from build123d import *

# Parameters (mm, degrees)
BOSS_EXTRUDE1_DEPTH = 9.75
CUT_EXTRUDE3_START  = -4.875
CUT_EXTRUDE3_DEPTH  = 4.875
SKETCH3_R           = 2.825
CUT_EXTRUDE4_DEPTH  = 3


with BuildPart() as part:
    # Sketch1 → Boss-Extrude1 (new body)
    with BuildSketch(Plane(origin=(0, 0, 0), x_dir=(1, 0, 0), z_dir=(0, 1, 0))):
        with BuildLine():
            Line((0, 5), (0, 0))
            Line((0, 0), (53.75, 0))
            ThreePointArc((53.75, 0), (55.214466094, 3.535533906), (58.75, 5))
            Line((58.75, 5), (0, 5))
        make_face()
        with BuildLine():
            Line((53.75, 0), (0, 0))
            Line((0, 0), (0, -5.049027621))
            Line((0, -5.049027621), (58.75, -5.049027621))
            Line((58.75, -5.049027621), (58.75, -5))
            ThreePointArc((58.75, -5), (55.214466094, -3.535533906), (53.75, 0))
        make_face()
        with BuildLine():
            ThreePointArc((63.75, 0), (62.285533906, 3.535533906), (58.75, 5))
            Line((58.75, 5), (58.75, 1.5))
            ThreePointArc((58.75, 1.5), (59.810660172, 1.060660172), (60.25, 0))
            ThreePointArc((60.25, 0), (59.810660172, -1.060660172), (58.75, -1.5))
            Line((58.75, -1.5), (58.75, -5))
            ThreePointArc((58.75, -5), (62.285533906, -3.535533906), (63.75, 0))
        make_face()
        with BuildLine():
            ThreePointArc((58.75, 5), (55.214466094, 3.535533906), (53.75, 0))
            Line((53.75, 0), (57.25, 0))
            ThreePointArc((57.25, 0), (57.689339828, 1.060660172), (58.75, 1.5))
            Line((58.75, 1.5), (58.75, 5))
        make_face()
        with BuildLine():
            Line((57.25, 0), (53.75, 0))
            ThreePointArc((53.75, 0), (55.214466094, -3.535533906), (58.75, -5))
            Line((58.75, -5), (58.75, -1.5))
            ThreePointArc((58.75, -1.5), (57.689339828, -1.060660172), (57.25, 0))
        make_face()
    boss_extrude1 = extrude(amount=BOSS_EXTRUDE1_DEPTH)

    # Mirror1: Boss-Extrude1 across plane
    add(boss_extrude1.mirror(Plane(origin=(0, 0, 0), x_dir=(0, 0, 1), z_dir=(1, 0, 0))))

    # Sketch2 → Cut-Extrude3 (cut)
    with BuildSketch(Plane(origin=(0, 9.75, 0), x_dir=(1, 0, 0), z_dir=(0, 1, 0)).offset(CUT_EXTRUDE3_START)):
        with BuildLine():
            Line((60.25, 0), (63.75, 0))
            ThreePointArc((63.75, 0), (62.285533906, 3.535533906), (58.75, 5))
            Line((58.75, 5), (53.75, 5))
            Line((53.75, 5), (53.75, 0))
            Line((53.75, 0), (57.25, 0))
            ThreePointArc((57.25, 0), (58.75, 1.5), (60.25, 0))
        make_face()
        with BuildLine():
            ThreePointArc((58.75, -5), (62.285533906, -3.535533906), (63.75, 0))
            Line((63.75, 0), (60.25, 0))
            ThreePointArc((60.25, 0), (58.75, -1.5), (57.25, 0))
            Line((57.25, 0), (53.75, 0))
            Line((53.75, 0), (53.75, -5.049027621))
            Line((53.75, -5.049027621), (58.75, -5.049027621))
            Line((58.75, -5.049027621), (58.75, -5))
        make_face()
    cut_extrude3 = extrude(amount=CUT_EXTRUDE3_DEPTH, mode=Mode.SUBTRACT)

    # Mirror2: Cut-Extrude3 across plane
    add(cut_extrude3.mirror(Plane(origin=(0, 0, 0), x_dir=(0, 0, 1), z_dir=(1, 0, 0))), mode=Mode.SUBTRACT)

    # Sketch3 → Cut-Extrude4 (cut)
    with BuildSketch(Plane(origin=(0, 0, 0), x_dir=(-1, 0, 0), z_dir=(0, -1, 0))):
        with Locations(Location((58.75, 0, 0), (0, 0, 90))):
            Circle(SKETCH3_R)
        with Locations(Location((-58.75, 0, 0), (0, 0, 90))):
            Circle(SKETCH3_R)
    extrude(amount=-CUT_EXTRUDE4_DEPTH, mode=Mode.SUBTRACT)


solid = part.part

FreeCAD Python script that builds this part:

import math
import FreeCAD as App
import Part
import Sketcher

V = App.Vector

doc = App.newDocument("Part")
body = doc.addObject("PartDesign::Body", "Body")

sketch1 = body.newObject("Sketcher::SketchObject", "Sketch")
sketch1.AttachmentSupport = (doc.getObject("XZ_Plane"), [""])
sketch1.MapMode = "FlatFace"
sketch1.addGeometry([
    Part.LineSegment(V(58.75, 5.049, 0), V(58.75, 5, 0)),
    Part.ArcOfCircle(Part.Circle(V(58.75, 0, 0), V(0, 0, 1), 5), math.radians(0), math.radians(90)),
    Part.ArcOfCircle(Part.Circle(V(58.75, 0, 0), V(0, 0, 1), 5), math.radians(-90), math.radians(0)),
    Part.LineSegment(V(58.75, -5, 0), V(0, -5, 0)),
    Part.LineSegment(V(0, -5, 0), V(0, 5.049, 0)),
    Part.LineSegment(V(0, 5.049, 0), V(58.75, 5.049, 0)),
    Part.ArcOfCircle(Part.Circle(V(58.75, 0, 0), V(0, 0, 1), 1.5), math.radians(0), math.radians(90)),
    Part.ArcOfCircle(Part.Circle(V(58.75, 0, 0), V(0, 0, 1), 1.5), math.radians(90), math.radians(180)),
    Part.ArcOfCircle(Part.Circle(V(58.75, 0, 0), V(0, 0, 1), 1.5), math.radians(180), math.radians(270)),
    Part.ArcOfCircle(Part.Circle(V(58.75, 0, 0), V(0, 0, 1), 1.5), math.radians(-90), math.radians(0)),
], False)
sketch1.addConstraint([
    Sketcher.Constraint("Coincident", 0, 2, 1, 2),
    Sketcher.Constraint("Tangent", 1, 1, 2, 2),
    Sketcher.Constraint("Tangent", 2, 1, 3, 1),
    Sketcher.Constraint("Coincident", 3, 2, 4, 1),
    Sketcher.Constraint("Coincident", 4, 2, 5, 1),
    Sketcher.Constraint("Coincident", 5, 2, 0, 1),
    Sketcher.Constraint("Tangent", 6, 2, 7, 1),
    Sketcher.Constraint("Tangent", 7, 2, 8, 1),
    Sketcher.Constraint("Tangent", 8, 2, 9, 1),
    Sketcher.Constraint("Tangent", 9, 2, 6, 1),
    Sketcher.Constraint("Vertical", 0),
    Sketcher.Constraint("Horizontal", 3),
    Sketcher.Constraint("Vertical", 4),
    Sketcher.Constraint("Horizontal", 5),
    Sketcher.Constraint("Coincident", 6, 3, 1, 3),
    Sketcher.Constraint("Equal", 1, 2),
    Sketcher.Constraint("Equal", 6, 7),
    Sketcher.Constraint("Symmetric", 0, 2, 2, 1, -1),
    Sketcher.Constraint("PointOnObject", 1, 1, -1),
    Sketcher.Constraint("PointOnObject", 3, 2, -2),
    Sketcher.Constraint("PointOnObject", 7, 2, -1),
    Sketcher.Constraint("PointOnObject", 9, 2, -1),
    Sketcher.Constraint("Vertical", 5, 2, 6, 2),
    Sketcher.Constraint("Vertical", 6, 2, 8, 2),
    Sketcher.Constraint("Radius", 1, 5.0),
    Sketcher.Constraint("Radius", 6, 1.5),
    Sketcher.Constraint("DistanceX", 3, 2, 3, 1, 58.75),
    Sketcher.Constraint("DistanceY", 0, 2, 0, 1, 0.049028),
])
pad1 = body.newObject("PartDesign::Pad", "Pad")
pad1.Profile = sketch1
pad1.Length = 9.75
pad1.Reversed = True
doc.recompute()

mirrored = body.newObject("PartDesign::Mirrored", "Mirrored")
mirrored.Originals = [pad1]
mirrored.MirrorPlane = (doc.getObject("YZ_Plane"), [""])
body.Tip = mirrored

sketch2 = body.newObject("Sketcher::SketchObject", "Sketch001")
sketch2.AttachmentSupport = (doc.getObject("XZ_Plane"), [""])
sketch2.MapMode = "FlatFace"
sketch2.AttachmentOffset = App.Placement(V(0, 0, -4.875), App.Rotation())
sketch2.addGeometry([
    Part.ArcOfCircle(Part.Circle(V(58.75, 0, 0), V(0, 0, 1), 5), math.radians(-90), math.radians(0)),
    Part.LineSegment(V(58.75, -5, 0), V(53.75, -5, 0)),
    Part.LineSegment(V(53.75, -5, 0), V(53.75, 5.049, 0)),
    Part.LineSegment(V(53.75, 5.049, 0), V(58.75, 5.049, 0)),
    Part.LineSegment(V(58.75, 5.049, 0), V(58.75, 5, 0)),
    Part.ArcOfCircle(Part.Circle(V(58.75, 0, 0), V(0, 0, 1), 5), math.radians(0), math.radians(90)),
    Part.Circle(V(58.75, 0, 0), V(0, 0, 1), 1.5),
], False)
sketch2.addConstraint([
    Sketcher.Constraint("Tangent", 0, 1, 1, 1),
    Sketcher.Constraint("Coincident", 1, 2, 2, 1),
    Sketcher.Constraint("Coincident", 2, 2, 3, 1),
    Sketcher.Constraint("Coincident", 3, 2, 4, 1),
    Sketcher.Constraint("Coincident", 4, 2, 5, 2),
    Sketcher.Constraint("Tangent", 5, 1, 0, 2),
    Sketcher.Constraint("Horizontal", 1),
    Sketcher.Constraint("Vertical", 2),
    Sketcher.Constraint("Horizontal", 3),
    Sketcher.Constraint("Vertical", 4),
    Sketcher.Constraint("Coincident", 6, 3, 0, 3),
    Sketcher.Constraint("Equal", 0, 5),
    Sketcher.Constraint("Symmetric", 0, 1, 4, 2, -1),
    Sketcher.Constraint("PointOnObject", 5, 1, -1),
    Sketcher.Constraint("Diameter", 6, 3.0),
    Sketcher.Constraint("Radius", 0, 5.0),
    Sketcher.Constraint("DistanceX", 1, 2, 1, 1, 5.0),
    Sketcher.Constraint("DistanceX", -1, 1, 0, 3, 58.75),
    Sketcher.Constraint("DistanceY", 2, 1, 2, 2, 10.049028),
])
pocket1 = body.newObject("PartDesign::Pocket", "Pocket")
pocket1.Profile = sketch2
pocket1.Length = 4.875
doc.recompute()

mirrored2 = body.newObject("PartDesign::Mirrored", "Mirrored001")
mirrored2.Originals = [pocket1]
mirrored2.MirrorPlane = (doc.getObject("YZ_Plane"), [""])
body.Tip = mirrored2

sketch3 = body.newObject("Sketcher::SketchObject", "Sketch002")
sketch3.AttachmentSupport = (doc.getObject("XZ_Plane"), [""])
sketch3.MapMode = "FlatFace"
sketch3.addGeometry([
    Part.Circle(V(-58.8, 0, 0), V(0, 0, 1), 2.8),
    Part.Circle(V(58.8, 0, 0), V(0, 0, 1), 2.8),
], False)
sketch3.addConstraint([
    Sketcher.Constraint("Equal", 0, 1),
    Sketcher.Constraint("Symmetric", 0, 3, 1, 3, -1, 1),
    Sketcher.Constraint("PointOnObject", 0, 3, -1),
    Sketcher.Constraint("Diameter", 0, 5.65),
    Sketcher.Constraint("DistanceX", 0, 3, 1, 3, 117.5),
])
pocket2 = body.newObject("PartDesign::Pocket", "Pocket001")
pocket2.Profile = sketch3
pocket2.Length = 3

doc.recompute()
